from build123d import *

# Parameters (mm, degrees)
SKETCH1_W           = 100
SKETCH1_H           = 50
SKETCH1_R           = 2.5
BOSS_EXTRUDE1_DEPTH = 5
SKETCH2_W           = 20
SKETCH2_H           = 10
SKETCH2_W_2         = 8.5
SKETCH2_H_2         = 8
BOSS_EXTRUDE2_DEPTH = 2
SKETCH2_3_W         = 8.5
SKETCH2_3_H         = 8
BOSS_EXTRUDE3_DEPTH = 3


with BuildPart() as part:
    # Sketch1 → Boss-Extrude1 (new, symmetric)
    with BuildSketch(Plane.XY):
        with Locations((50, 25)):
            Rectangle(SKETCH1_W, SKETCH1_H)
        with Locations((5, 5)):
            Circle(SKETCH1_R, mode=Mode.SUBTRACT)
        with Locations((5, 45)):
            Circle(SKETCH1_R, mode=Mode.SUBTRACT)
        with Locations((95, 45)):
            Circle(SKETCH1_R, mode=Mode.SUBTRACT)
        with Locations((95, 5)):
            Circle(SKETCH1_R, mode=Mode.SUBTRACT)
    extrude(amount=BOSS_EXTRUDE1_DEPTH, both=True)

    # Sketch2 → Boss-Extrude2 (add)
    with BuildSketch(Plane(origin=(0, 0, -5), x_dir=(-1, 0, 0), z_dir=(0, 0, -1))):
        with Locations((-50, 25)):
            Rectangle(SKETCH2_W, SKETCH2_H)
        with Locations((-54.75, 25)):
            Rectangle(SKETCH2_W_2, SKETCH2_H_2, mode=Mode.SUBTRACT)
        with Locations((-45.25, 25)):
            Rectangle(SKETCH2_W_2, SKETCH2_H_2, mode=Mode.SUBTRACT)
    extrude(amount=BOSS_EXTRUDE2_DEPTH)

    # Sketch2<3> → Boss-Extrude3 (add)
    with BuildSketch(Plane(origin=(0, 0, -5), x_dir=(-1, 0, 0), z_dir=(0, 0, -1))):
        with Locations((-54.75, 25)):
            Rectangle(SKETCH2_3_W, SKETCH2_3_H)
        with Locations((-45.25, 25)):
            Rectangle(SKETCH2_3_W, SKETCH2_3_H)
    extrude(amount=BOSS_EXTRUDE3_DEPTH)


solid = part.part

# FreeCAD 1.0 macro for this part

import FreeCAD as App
import Part
import Sketcher
from FreeCAD import Vector


def add_polygon(sketch, points):
    """Adds a closed chain of lines whose ends are joined by coincident constraints."""
    first, n = sketch.GeometryCount, len(points)
    for a, b in zip(points, points[1:] + points[:1]):
        sketch.addGeometry(Part.LineSegment(App.Vector(*a, 0), App.Vector(*b, 0)), False)
    for i in range(n):
        sketch.addConstraint(Sketcher.Constraint("Coincident", first + i, 2, first + (i + 1) % n, 1))

doc = App.newDocument("Part")
body = doc.addObject("PartDesign::Body", "Body")

sketch1 = doc.addObject("Sketcher::SketchObject", "Sketch")
body.addObject(sketch1)
sketch1.AttachmentSupport = (doc.XY_Plane, [""])
sketch1.MapMode = "FlatFace"
add_polygon(sketch1, [(0, 50), (0, 0), (100, 0), (100, 50)])
sketch1.addGeometry(Part.Circle(Vector(5, 5, 0), Vector(0, 0, 1), 2.5), False)
sketch1.addGeometry(Part.Circle(Vector(95, 5, 0), Vector(0, 0, 1), 2.5), False)
sketch1.addGeometry(Part.Circle(Vector(5, 45, 0), Vector(0, 0, 1), 2.5), False)
sketch1.addGeometry(Part.Circle(Vector(95, 45, 0), Vector(0, 0, 1), 2.5), False)
sketch1.addConstraint(Sketcher.Constraint("Vertical", 0))
sketch1.addConstraint(Sketcher.Constraint("Horizontal", 1))
sketch1.addConstraint(Sketcher.Constraint("Vertical", 2))
sketch1.addConstraint(Sketcher.Constraint("Horizontal", 3))
sketch1.addConstraint(Sketcher.Constraint("Coincident", 0, 2, -1, 1))
sketch1.addConstraint(Sketcher.Constraint("Equal", 4, 5))
sketch1.addConstraint(Sketcher.Constraint("Equal", 5, 6))
sketch1.addConstraint(Sketcher.Constraint("Equal", 6, 7))
sketch1.addConstraint(Sketcher.Constraint("Horizontal", 4, 3, 5, 3))
sketch1.addConstraint(Sketcher.Constraint("Horizontal", 6, 3, 7, 3))
sketch1.addConstraint(Sketcher.Constraint("Vertical", 4, 3, 6, 3))
sketch1.addConstraint(Sketcher.Constraint("Vertical", 5, 3, 7, 3))
sketch1.addConstraint(Sketcher.Constraint("Diameter", 4, 5.0))
sketch1.addConstraint(Sketcher.Constraint("DistanceX", 1, 1, 1, 2, 100.0))
sketch1.addConstraint(Sketcher.Constraint("DistanceY", 0, 2, 0, 1, 50.0))
sketch1.addConstraint(Sketcher.Constraint("DistanceX", -1, 1, 4, 3, 5.0))
sketch1.addConstraint(Sketcher.Constraint("DistanceY", -1, 1, 4, 3, 5.0))
sketch1.addConstraint(Sketcher.Constraint("DistanceX", -1, 1, 5, 3, 95.0))
sketch1.addConstraint(Sketcher.Constraint("DistanceY", -1, 1, 6, 3, 45.0))
pad1 = doc.addObject("PartDesign::Pad", "Pad")
body.addObject(pad1)
pad1.Profile = sketch1
pad1.Length = 10
pad1.Midplane = True

sketch2 = doc.addObject("Sketcher::SketchObject", "Sketch001")
body.addObject(sketch2)
sketch2.AttachmentSupport = (doc.XY_Plane, [""])
sketch2.MapMode = "FlatFace"
sketch2.AttachmentOffset = App.Placement(Vector(0, 0, -5), App.Rotation())
add_polygon(sketch2, [(60, 30), (60, 20), (40, 20), (40, 30)])
add_polygon(sketch2, [(50, 21), (59, 21), (59, 29), (50, 29)])
add_polygon(sketch2, [(41, 21), (50, 21), (50, 29), (41, 29)])
sketch2.addConstraint(Sketcher.Constraint("Vertical", 0))
sketch2.addConstraint(Sketcher.Constraint("Horizontal", 1))
sketch2.addConstraint(Sketcher.Constraint("Vertical", 2))
sketch2.addConstraint(Sketcher.Constraint("Horizontal", 3))
sketch2.addConstraint(Sketcher.Constraint("Horizontal", 4))
sketch2.addConstraint(Sketcher.Constraint("Vertical", 5))
sketch2.addConstraint(Sketcher.Constraint("Horizontal", 6))
sketch2.addConstraint(Sketcher.Constraint("Vertical", 7))
sketch2.addConstraint(Sketcher.Constraint("Horizontal", 8))
sketch2.addConstraint(Sketcher.Constraint("Vertical", 9))
sketch2.addConstraint(Sketcher.Constraint("Horizontal", 10))
sketch2.addConstraint(Sketcher.Constraint("Vertical", 11))
sketch2.addConstraint(Sketcher.Constraint("Horizontal", 7, 2, 8, 2))
sketch2.addConstraint(Sketcher.Constraint("Horizontal", 6, 2, 9, 2))
sketch2.addConstraint(Sketcher.Constraint("Equal", 6, 8))
sketch2.addConstraint(Sketcher.Constraint("DistanceX", 1, 2, 1, 1, 20.0))
sketch2.addConstraint(Sketcher.Constraint("DistanceY", 0, 2, 0, 1, 10.0))
sketch2.addConstraint(Sketcher.Constraint("DistanceY", 5, 1, 5, 2, 8.0))
sketch2.addConstraint(Sketcher.Constraint("DistanceX", 4, 1, 4, 2, 8.5))
sketch2.addConstraint(Sketcher.Constraint("DistanceX", -1, 1, 0, 2, 60.0))
sketch2.addConstraint(Sketcher.Constraint("DistanceY", -1, 1, 0, 2, 20.0))
sketch2.addConstraint(Sketcher.Constraint("DistanceX", -1, 1, 4, 2, 59.0))
sketch2.addConstraint(Sketcher.Constraint("DistanceY", -1, 1, 4, 2, 21.0))
sketch2.addConstraint(Sketcher.Constraint("DistanceX", -1, 1, 10, 2, 41.0))
pad2 = doc.addObject("PartDesign::Pad", "Pad001")
body.addObject(pad2)
pad2.Profile = sketch2
pad2.Length = 2
pad2.Reversed = True

sketch3 = doc.addObject("Sketcher::SketchObject", "Sketch002")
body.addObject(sketch3)
sketch3.AttachmentSupport = (doc.XY_Plane, [""])
sketch3.MapMode = "FlatFace"
sketch3.AttachmentOffset = App.Placement(Vector(0, 0, -5), App.Rotation())
add_polygon(sketch3, [(59, 29), (59, 21), (50, 21), (50, 29)])
add_polygon(sketch3, [(50, 29), (50, 21), (41, 21), (41, 29)])
sketch3.addConstraint(Sketcher.Constraint("Vertical", 0))
sketch3.addConstraint(Sketcher.Constraint("Horizontal", 1))
sketch3.addConstraint(Sketcher.Constraint("Vertical", 2))
sketch3.addConstraint(Sketcher.Constraint("Horizontal", 3))
sketch3.addConstraint(Sketcher.Constraint("Vertical", 4))
sketch3.addConstraint(Sketcher.Constraint("Horizontal", 5))
sketch3.addConstraint(Sketcher.Constraint("Vertical", 6))
sketch3.addConstraint(Sketcher.Constraint("Horizontal", 7))
sketch3.addConstraint(Sketcher.Constraint("Horizontal", 1, 2, 4, 2))
sketch3.addConstraint(Sketcher.Constraint("Horizontal", 3, 2, 6, 2))
sketch3.addConstraint(Sketcher.Constraint("Equal", 3, 5))
sketch3.addConstraint(Sketcher.Constraint("DistanceY", 0, 2, 0, 1, 8.0))
sketch3.addConstraint(Sketcher.Constraint("DistanceX", 1, 2, 1, 1, 8.5))
sketch3.addConstraint(Sketcher.Constraint("DistanceX", -1, 1, 0, 2, 59.0))
sketch3.addConstraint(Sketcher.Constraint("DistanceY", -1, 1, 0, 2, 21.0))
sketch3.addConstraint(Sketcher.Constraint("DistanceX", -1, 1, 5, 2, 41.0))
pad3 = doc.addObject("PartDesign::Pad", "Pad002")
body.addObject(pad3)
pad3.Profile = sketch3
pad3.Length = 3
pad3.Reversed = True

doc.recompute()
